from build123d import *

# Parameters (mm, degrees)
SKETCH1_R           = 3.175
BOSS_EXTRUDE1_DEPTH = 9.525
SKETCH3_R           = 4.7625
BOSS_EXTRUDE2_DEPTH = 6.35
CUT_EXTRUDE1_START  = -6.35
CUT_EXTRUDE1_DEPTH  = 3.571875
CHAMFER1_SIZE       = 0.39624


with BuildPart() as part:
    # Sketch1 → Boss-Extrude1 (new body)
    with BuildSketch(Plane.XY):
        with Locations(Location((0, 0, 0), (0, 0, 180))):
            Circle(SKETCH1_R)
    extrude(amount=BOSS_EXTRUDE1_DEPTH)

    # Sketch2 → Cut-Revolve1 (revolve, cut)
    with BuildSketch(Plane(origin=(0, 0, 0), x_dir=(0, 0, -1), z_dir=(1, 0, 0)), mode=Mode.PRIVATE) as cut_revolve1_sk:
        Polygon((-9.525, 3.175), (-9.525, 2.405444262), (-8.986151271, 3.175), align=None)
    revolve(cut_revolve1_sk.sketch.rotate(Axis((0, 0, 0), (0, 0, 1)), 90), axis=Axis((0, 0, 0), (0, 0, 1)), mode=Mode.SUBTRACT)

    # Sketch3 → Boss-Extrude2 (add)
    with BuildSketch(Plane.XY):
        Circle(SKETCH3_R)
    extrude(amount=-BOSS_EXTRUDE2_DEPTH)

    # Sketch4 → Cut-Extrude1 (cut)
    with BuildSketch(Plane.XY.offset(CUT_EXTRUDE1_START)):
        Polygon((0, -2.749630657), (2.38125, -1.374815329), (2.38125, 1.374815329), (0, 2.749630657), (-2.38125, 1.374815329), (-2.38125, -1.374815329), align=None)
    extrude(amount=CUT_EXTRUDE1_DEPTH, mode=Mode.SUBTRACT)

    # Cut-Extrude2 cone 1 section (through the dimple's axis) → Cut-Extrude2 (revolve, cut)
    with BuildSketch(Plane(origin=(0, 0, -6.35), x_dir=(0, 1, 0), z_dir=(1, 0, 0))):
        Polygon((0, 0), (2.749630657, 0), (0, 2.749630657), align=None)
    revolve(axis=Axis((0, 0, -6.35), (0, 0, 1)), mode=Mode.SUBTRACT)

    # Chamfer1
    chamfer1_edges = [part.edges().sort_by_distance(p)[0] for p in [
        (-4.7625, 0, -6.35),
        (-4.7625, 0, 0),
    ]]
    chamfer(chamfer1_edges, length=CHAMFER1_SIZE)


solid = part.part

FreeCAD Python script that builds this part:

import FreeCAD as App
import Part
import Sketcher

V = App.Vector
Q = App.Units.Quantity


def edges_at(feature, points):
    """Names of the edges that pass closest to the given points."""
    edges = feature.Shape.Edges
    near = lambda p: min(range(len(edges)), key=lambda i: edges[i].distToShape(Part.Vertex(*p))[0])
    return sorted({f"Edge{near(p) + 1}" for p in points})


def add_polygon(sketch, points):
    """Adds a closed chain of lines whose ends are joined by coincident constraints."""
    first, n = sketch.GeometryCount, len(points)
    for a, b in zip(points, points[1:] + points[:1]):
        sketch.addGeometry(Part.LineSegment(App.Vector(*a, 0), App.Vector(*b, 0)), False)
    for i in range(n):
        sketch.addConstraint(Sketcher.Constraint("Coincident", first + i, 2, first + (i + 1) % n, 1))

doc = App.newDocument("Part")
body = doc.addObject("PartDesign::Body", "Body")

sketch1 = body.newObject("Sketcher::SketchObject", "Sketch")
sketch1.AttachmentSupport = (doc.getObject("XY_Plane"), [""])
sketch1.MapMode = "FlatFace"
sketch1.addGeometry(Part.Circle(V(0, 0, 0), V(0, 0, 1), 3.175), False)
sketch1.addConstraint(Sketcher.Constraint("Coincident", 0, 3, -1, 1))
sketch1.addConstraint(Sketcher.Constraint("Diameter", 0, Q("0.25 in")))
pad1 = body.newObject("PartDesign::Pad", "Pad")
pad1.Profile = sketch1
pad1.Length = Q("0.375 in")

sketch2 = body.newObject("Sketcher::SketchObject", "Sketch001")
sketch2.AttachmentSupport = (doc.getObject("YZ_Plane"), [""])
sketch2.MapMode = "FlatFace"
add_polygon(sketch2, [(3.175, 9.525), (2.405444, 9.525), (3.175, 8.986151)])
sketch2.addConstraint(Sketcher.Constraint("Horizontal", 0))
sketch2.addConstraint(Sketcher.Constraint("Vertical", 2))
sketch2.addConstraint(Sketcher.Constraint("Angle", 1, Q("-35 deg")))
sketch2.addConstraint(Sketcher.Constraint("DistanceY", -1, 1, 0, 2, Q("0.375 in")))
sketch2.addConstraint(Sketcher.Constraint("DistanceX", -1, 1, 1, 2, Q("0.125 in")))
sketch2.addConstraint(Sketcher.Constraint("DistanceY", 2, 1, 2, 2, 0.538849))
groove = body.newObject("PartDesign::Groove", "Groove")
groove.Profile = sketch2
groove.ReferenceAxis = (sketch2, ["V_Axis"])
groove.Angle = 360

sketch3 = body.newObject("Sketcher::SketchObject", "Sketch002")
sketch3.AttachmentSupport = (doc.getObject("XY_Plane"), [""])
sketch3.MapMode = "FlatFace"
sketch3.addGeometry(Part.Circle(V(0, 0, 0), V(0, 0, 1), 4.7625), False)
sketch3.addConstraint(Sketcher.Constraint("Coincident", 0, 3, -1, 1))
sketch3.addConstraint(Sketcher.Constraint("Diameter", 0, Q("0.375 in")))
pad2 = body.newObject("PartDesign::Pad", "Pad001")
pad2.Profile = sketch3
pad2.Length = Q("0.25 in")
pad2.Reversed = True

sketch4 = body.newObject("Sketcher::SketchObject", "Sketch003")
sketch4.AttachmentSupport = (doc.getObject("XY_Plane"), [""])
sketch4.MapMode = "FlatFace"
sketch4.AttachmentOffset = App.Placement(V(0, 0, -0.25 * 25.4), App.Rotation())
add_polygon(sketch4, [(0, -2.749631), (2.38125, -1.374815), (2.38125, 1.374815), (0, 2.749631), (-2.38125, 1.374815), (-2.38125, -1.374815)])
sketch4.addConstraint(Sketcher.Constraint("Vertical", 1))
sketch4.addConstraint(Sketcher.Constraint("Vertical", 4))
sketch4.addConstraint(Sketcher.Constraint("Symmetric", 0, 2, 3, 2, -1, 1))
sketch4.addConstraint(Sketcher.Constraint("Symmetric", 2, 2, 5, 2, -1, 1))
sketch4.addConstraint(Sketcher.Constraint("PointOnObject", 2, 2, -2))
sketch4.addConstraint(Sketcher.Constraint("Parallel", 2, 5))
sketch4.addConstraint(Sketcher.Constraint("Horizontal", 1, 2, 3, 2))
sketch4.addConstraint(Sketcher.Constraint("Angle", 0, Q("30 deg")))
sketch4.addConstraint(Sketcher.Constraint("DistanceX", -1, 1, 0, 2, Q("0.09375 in")))
sketch4.addConstraint(Sketcher.Constraint("DistanceY", 1, 1, 1, 2, 2.749631))
pocket1 = body.newObject("PartDesign::Pocket", "Pocket")
pocket1.Profile = sketch4
pocket1.Length = Q("0.140625 in")
pocket1.Reversed = True

sketch5 = body.newObject("Sketcher::SketchObject", "Sketch004")
sketch5.AttachmentSupport = (doc.getObject("YZ_Plane"), [""])
sketch5.MapMode = "FlatFace"
add_polygon(sketch5, [(0, -6.35), (2.749631, -6.35), (0, -3.600369)])
sketch5.addConstraint(Sketcher.Constraint("Horizontal", 0))
sketch5.addConstraint(Sketcher.Constraint("Vertical", 2))
sketch5.addConstraint(Sketcher.Constraint("PointOnObject", 1, 2, -2))
sketch5.addConstraint(Sketcher.Constraint("Equal", 0, 2))
sketch5.addConstraint(Sketcher.Constraint("DistanceY", 0, 2, -1, 1, Q("0.25 in")))
sketch5.addConstraint(Sketcher.Constraint("DistanceX", 0, 1, 0, 2, 2.749631))
groove2 = body.newObject("PartDesign::Groove", "Groove001")
groove2.Profile = sketch5
groove2.ReferenceAxis = (sketch5, ["V_Axis"])
groove2.Angle = 360
doc.recompute()

chamfer = body.newObject("PartDesign::Chamfer", "Chamfer")
chamfer.Base = (groove2, edges_at(groove2, [(-4.763, 0, -6.35), (-4.763, 0, 0)]))
chamfer.Size = Q("0.0156 in")

doc.recompute()
